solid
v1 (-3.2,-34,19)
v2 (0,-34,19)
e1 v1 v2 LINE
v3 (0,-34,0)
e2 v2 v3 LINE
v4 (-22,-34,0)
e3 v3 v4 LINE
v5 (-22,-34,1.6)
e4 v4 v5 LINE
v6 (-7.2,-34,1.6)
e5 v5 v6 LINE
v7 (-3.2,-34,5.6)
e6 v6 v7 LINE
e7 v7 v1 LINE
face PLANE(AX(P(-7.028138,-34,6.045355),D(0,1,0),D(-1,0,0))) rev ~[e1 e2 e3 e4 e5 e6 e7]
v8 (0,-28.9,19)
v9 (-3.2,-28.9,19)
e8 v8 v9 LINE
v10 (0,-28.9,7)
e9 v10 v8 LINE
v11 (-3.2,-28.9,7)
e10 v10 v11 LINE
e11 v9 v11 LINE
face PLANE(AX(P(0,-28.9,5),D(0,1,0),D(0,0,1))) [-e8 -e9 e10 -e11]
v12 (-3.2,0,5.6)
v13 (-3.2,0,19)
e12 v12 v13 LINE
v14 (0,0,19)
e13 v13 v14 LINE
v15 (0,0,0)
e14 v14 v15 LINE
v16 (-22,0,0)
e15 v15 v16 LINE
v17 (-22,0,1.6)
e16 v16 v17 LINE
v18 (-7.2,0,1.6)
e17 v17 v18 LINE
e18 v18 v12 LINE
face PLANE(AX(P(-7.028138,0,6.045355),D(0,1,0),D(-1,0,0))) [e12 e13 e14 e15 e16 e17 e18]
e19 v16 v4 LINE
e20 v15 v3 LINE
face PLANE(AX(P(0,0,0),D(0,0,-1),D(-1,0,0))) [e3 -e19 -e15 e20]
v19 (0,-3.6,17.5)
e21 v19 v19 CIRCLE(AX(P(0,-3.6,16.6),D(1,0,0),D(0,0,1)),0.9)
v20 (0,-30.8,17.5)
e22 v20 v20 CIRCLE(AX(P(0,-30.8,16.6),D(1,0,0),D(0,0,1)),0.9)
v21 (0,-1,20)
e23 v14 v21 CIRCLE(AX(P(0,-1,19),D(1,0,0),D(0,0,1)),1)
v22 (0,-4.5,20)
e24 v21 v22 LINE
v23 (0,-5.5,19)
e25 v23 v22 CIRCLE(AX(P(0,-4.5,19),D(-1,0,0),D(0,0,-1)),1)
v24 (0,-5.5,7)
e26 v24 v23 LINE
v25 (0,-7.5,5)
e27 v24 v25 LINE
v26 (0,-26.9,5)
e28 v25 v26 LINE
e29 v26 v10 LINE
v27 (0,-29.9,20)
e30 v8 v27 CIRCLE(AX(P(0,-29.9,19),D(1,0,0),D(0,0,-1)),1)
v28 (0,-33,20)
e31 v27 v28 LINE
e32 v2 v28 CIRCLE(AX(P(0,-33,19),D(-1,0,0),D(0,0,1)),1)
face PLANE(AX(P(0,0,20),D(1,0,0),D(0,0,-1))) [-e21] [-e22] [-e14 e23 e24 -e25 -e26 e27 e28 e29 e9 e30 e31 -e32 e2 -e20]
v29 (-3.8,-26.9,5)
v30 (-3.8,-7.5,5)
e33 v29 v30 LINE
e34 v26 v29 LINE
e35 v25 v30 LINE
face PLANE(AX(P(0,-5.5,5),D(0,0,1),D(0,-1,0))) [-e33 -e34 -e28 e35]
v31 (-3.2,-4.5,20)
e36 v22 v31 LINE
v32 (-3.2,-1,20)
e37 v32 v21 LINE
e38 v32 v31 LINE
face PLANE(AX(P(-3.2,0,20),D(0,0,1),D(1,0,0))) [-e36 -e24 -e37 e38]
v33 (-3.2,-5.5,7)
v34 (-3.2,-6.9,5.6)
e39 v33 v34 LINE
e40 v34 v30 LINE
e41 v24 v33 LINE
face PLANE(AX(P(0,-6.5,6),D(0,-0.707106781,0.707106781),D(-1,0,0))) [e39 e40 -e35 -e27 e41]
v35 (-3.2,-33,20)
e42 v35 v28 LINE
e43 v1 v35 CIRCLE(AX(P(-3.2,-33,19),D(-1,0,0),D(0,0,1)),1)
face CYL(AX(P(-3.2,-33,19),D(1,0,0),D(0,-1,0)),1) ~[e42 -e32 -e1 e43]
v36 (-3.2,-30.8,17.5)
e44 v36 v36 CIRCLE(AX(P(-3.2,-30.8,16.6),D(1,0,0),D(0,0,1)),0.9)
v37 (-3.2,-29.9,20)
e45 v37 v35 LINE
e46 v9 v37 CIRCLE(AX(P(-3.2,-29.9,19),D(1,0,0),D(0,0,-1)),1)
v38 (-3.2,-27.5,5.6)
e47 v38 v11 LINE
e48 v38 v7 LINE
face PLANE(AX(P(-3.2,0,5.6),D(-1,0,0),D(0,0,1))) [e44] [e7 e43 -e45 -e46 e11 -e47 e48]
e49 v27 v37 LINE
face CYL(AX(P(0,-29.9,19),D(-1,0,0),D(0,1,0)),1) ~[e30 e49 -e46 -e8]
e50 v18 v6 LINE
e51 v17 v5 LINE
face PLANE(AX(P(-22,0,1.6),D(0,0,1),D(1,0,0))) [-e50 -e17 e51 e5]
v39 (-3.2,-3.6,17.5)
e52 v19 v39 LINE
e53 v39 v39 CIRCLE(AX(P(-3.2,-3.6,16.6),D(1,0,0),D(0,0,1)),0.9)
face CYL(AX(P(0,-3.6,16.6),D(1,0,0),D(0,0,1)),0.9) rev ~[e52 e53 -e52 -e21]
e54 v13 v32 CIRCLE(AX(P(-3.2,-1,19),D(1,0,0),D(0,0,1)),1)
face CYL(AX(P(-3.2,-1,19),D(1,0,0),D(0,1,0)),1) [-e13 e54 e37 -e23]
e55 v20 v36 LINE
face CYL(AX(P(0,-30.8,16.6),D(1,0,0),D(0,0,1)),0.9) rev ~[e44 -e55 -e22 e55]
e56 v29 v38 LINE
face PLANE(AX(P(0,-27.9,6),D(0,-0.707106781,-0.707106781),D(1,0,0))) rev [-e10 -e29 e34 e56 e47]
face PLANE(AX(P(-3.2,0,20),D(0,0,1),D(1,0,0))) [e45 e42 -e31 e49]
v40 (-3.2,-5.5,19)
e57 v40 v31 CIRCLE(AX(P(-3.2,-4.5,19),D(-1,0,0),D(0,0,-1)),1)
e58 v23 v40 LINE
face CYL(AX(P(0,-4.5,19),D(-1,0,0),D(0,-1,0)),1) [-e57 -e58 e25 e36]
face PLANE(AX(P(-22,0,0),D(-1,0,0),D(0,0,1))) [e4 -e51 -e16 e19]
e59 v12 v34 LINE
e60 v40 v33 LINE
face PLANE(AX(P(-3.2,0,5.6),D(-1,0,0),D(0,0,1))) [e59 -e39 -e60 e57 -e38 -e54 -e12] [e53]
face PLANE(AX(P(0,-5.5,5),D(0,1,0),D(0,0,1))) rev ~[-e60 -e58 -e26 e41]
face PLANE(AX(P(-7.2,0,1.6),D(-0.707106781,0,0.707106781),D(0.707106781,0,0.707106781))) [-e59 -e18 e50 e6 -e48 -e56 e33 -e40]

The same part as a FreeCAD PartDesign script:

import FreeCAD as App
import Part
import Sketcher
from FreeCAD import Vector
Q = App.Units.Quantity


def edges_at(feature, points):
    """Names of the edges that pass closest to the given points."""
    edges = feature.Shape.Edges
    near = lambda p: min(range(len(edges)), key=lambda i: edges[i].distToShape(Part.Vertex(*p))[0])
    return sorted({f"Edge{near(p) + 1}" for p in points})


def add_polygon(sketch, points):
    """Adds a closed chain of lines whose ends are joined by coincident constraints."""
    first, n = sketch.GeometryCount, len(points)
    for a, b in zip(points, points[1:] + points[:1]):
        sketch.addGeometry(Part.LineSegment(App.Vector(*a, 0), App.Vector(*b, 0)), False)
    for i in range(n):
        sketch.addConstraint(Sketcher.Constraint("Coincident", first + i, 2, first + (i + 1) % n, 1))

doc = App.newDocument("Part")
params = doc.addObject("Spreadsheet::Sheet", "Params")
for row, (alias, value) in enumerate([
    ("sketch1_width", "22 mm"),
    ("sketch1_height", "20 mm"),
    ("sketch1_width2", "14.8 mm"),
    ("sketch1_width3", "3.2 mm"),
    ("sketch1_height2", "1.6 mm"),
    ("pad1_length", "34 mm"),
    ("sketch2_width", "5.1 mm"),
    ("pad2_length", "1.6 mm"),
    ("linearpattern_pitch", "32.4 mm"),
    ("sketch3_diameter", "1.8 mm"),
    ("sketch4_height", "17 mm"),
    ("sketch4_width", "23.4 mm"),
    ("fillet_radius", "1 mm"),
    ("chamfer_size", "2 mm"),
], start=1):
    params.set(f"A{row}", alias)
    params.set(f"B{row}", "=" + value)
    params.setAlias(f"B{row}", alias)

body = doc.addObject("PartDesign::Body", "Body")

sketch1 = body.newObject("Sketcher::SketchObject", "Sketch")
sketch1.AttachmentSupport = (doc.getObject("XZ_Plane"), [""])
sketch1.MapMode = "FlatFace"
add_polygon(sketch1, [(-7.2, 1.6), (-22, 1.6), (-22, 0), (0, 0), (0, 20), (-3.2, 20), (-3.2, 5.6)])
sketch1.addConstraint(Sketcher.Constraint("Horizontal", 0))
sketch1.addConstraint(Sketcher.Constraint("Vertical", 1))
sketch1.addConstraint(Sketcher.Constraint("Horizontal", 2))
sketch1.addConstraint(Sketcher.Constraint("Vertical", 3))
sketch1.addConstraint(Sketcher.Constraint("Horizontal", 4))
sketch1.addConstraint(Sketcher.Constraint("Vertical", 5))
sketch1.addConstraint(Sketcher.Constraint("Coincident", 2, 2, -1, 1))
sketch1.addConstraint(Sketcher.Constraint("DistanceX", 2, 1, 2, 2, 22.0))
sketch1.addConstraint(Sketcher.Constraint("DistanceY", 3, 1, 3, 2, 20.0))
sketch1.addConstraint(Sketcher.Constraint("Angle", 6, Q("-135 deg")))
sketch1.addConstraint(Sketcher.Constraint("DistanceX", 0, 2, 0, 1, 14.8))
sketch1.addConstraint(Sketcher.Constraint("DistanceX", 4, 2, 4, 1, 3.2))
sketch1.addConstraint(Sketcher.Constraint("DistanceY", 1, 2, 1, 1, 1.6))
sketch1.setExpression("Constraints[14]", "Params.sketch1_width")
sketch1.setExpression("Constraints[15]", "Params.sketch1_height")
sketch1.setExpression("Constraints[17]", "Params.sketch1_width2")
sketch1.setExpression("Constraints[18]", "Params.sketch1_width3")
sketch1.setExpression("Constraints[19]", "Params.sketch1_height2")
pad1 = body.newObject("PartDesign::Pad", "Pad")
pad1.Profile = sketch1
pad1.setExpression("Length", "Params.pad1_length")

sketch2 = body.newObject("Sketcher::SketchObject", "Sketch001")
sketch2.AttachmentSupport = (doc.getObject("XZ_Plane"), [""])
sketch2.MapMode = "FlatFace"
add_polygon(sketch2, [(-1.5, 6.6), (-6.6, 1.5), (-1.5, 1.5)])
sketch2.addConstraint(Sketcher.Constraint("Horizontal", 1))
sketch2.addConstraint(Sketcher.Constraint("Vertical", 2))
sketch2.addConstraint(Sketcher.Constraint("Equal", 1, 2))
sketch2.addConstraint(Sketcher.Constraint("DistanceX", 1, 1, 1, 2, 5.1))
sketch2.addConstraint(Sketcher.Constraint("DistanceX", 0, 2, -1, 1, 6.6))
sketch2.addConstraint(Sketcher.Constraint("DistanceY", -1, 1, 0, 2, 1.5))
sketch2.setExpression("Constraints[6]", "Params.sketch2_width")
pad2 = body.newObject("PartDesign::Pad", "Pad001")
pad2.Profile = sketch2
pad2.setExpression("Length", "Params.pad2_length")
doc.recompute()

linearpattern = body.newObject("PartDesign::LinearPattern", "LinearPattern")
linearpattern.Originals = [pad2]
linearpattern.Direction = (doc.getObject("Y_Axis"), [""])
linearpattern.Mode = "offset"
linearpattern.setExpression("Offset", "Params.linearpattern_pitch")
linearpattern.Occurrences = 2
linearpattern.Reversed = True
body.Tip = linearpattern

sketch3 = body.newObject("Sketcher::SketchObject", "Sketch002")
sketch3.AttachmentSupport = (doc.getObject("YZ_Plane"), [""])
sketch3.MapMode = "FlatFace"
sketch3.addGeometry(Part.Circle(Vector(-30.8, 16.6, 0), Vector(0, 0, 1), 0.9), False)
sketch3.addGeometry(Part.Circle(Vector(-3.6, 16.6, 0), Vector(0, 0, 1), 0.9), False)
sketch3.addConstraint(Sketcher.Constraint("Equal", 0, 1))
sketch3.addConstraint(Sketcher.Constraint("Horizontal", 0, 3, 1, 3))
sketch3.addConstraint(Sketcher.Constraint("Diameter", 0, 1.8))
sketch3.addConstraint(Sketcher.Constraint("DistanceX", 0, 3, -1, 1, 30.8))
sketch3.addConstraint(Sketcher.Constraint("DistanceY", -1, 1, 0, 3, 16.6))
sketch3.addConstraint(Sketcher.Constraint("DistanceX", 1, 3, -1, 1, 3.6))
sketch3.setExpression("Constraints[2]", "Params.sketch3_diameter")
pocket1 = body.newObject("PartDesign::Pocket", "Pocket")
pocket1.Profile = sketch3
pocket1.Type = "ThroughAll"

sketch4 = body.newObject("Sketcher::SketchObject", "Sketch003")
sketch4.AttachmentSupport = (doc.getObject("YZ_Plane"), [""])
sketch4.MapMode = "FlatFace"
add_polygon(sketch4, [(-28.9, 5), (-5.5, 5), (-5.5, 22), (-28.9, 22)])
sketch4.addConstraint(Sketcher.Constraint("Horizontal", 0))
sketch4.addConstraint(Sketcher.Constraint("Vertical", 1))
sketch4.addConstraint(Sketcher.Constraint("Horizontal", 2))
sketch4.addConstraint(Sketcher.Constraint("Vertical", 3))
sketch4.addConstraint(Sketcher.Constraint("DistanceY", 1, 1, 1, 2, 17.0))
sketch4.addConstraint(Sketcher.Constraint("DistanceX", 0, 1, 0, 2, 23.4))
sketch4.addConstraint(Sketcher.Constraint("DistanceY", -1, 1, 0, 2, 5.0))
sketch4.addConstraint(Sketcher.Constraint("DistanceX", 0, 2, -1, 1, 5.5))
sketch4.setExpression("Constraints[8]", "Params.sketch4_height")
sketch4.setExpression("Constraints[9]", "Params.sketch4_width")
pocket2 = body.newObject("PartDesign::Pocket", "Pocket001")
pocket2.Profile = sketch4
pocket2.Type = "ThroughAll"
doc.recompute()

fillet = body.newObject("PartDesign::Fillet", "Fillet")
fillet.Base = (pocket2, edges_at(pocket2, [
    (-1.6, -34, 20),
    (-1.6, -28.9, 20),
    (-1.6, -5.5, 20),
    (-1.6, 0, 20),
]))
fillet.setExpression("Radius", "Params.fillet_radius")
doc.recompute()

chamfer = body.newObject("PartDesign::Chamfer", "Chamfer")
chamfer.Base = (fillet, edges_at(fillet, [(-1.9, -28.9, 5), (-1.9, -5.5, 5)]))
chamfer.setExpression("Size", "Params.chamfer_size")

doc.recompute()
